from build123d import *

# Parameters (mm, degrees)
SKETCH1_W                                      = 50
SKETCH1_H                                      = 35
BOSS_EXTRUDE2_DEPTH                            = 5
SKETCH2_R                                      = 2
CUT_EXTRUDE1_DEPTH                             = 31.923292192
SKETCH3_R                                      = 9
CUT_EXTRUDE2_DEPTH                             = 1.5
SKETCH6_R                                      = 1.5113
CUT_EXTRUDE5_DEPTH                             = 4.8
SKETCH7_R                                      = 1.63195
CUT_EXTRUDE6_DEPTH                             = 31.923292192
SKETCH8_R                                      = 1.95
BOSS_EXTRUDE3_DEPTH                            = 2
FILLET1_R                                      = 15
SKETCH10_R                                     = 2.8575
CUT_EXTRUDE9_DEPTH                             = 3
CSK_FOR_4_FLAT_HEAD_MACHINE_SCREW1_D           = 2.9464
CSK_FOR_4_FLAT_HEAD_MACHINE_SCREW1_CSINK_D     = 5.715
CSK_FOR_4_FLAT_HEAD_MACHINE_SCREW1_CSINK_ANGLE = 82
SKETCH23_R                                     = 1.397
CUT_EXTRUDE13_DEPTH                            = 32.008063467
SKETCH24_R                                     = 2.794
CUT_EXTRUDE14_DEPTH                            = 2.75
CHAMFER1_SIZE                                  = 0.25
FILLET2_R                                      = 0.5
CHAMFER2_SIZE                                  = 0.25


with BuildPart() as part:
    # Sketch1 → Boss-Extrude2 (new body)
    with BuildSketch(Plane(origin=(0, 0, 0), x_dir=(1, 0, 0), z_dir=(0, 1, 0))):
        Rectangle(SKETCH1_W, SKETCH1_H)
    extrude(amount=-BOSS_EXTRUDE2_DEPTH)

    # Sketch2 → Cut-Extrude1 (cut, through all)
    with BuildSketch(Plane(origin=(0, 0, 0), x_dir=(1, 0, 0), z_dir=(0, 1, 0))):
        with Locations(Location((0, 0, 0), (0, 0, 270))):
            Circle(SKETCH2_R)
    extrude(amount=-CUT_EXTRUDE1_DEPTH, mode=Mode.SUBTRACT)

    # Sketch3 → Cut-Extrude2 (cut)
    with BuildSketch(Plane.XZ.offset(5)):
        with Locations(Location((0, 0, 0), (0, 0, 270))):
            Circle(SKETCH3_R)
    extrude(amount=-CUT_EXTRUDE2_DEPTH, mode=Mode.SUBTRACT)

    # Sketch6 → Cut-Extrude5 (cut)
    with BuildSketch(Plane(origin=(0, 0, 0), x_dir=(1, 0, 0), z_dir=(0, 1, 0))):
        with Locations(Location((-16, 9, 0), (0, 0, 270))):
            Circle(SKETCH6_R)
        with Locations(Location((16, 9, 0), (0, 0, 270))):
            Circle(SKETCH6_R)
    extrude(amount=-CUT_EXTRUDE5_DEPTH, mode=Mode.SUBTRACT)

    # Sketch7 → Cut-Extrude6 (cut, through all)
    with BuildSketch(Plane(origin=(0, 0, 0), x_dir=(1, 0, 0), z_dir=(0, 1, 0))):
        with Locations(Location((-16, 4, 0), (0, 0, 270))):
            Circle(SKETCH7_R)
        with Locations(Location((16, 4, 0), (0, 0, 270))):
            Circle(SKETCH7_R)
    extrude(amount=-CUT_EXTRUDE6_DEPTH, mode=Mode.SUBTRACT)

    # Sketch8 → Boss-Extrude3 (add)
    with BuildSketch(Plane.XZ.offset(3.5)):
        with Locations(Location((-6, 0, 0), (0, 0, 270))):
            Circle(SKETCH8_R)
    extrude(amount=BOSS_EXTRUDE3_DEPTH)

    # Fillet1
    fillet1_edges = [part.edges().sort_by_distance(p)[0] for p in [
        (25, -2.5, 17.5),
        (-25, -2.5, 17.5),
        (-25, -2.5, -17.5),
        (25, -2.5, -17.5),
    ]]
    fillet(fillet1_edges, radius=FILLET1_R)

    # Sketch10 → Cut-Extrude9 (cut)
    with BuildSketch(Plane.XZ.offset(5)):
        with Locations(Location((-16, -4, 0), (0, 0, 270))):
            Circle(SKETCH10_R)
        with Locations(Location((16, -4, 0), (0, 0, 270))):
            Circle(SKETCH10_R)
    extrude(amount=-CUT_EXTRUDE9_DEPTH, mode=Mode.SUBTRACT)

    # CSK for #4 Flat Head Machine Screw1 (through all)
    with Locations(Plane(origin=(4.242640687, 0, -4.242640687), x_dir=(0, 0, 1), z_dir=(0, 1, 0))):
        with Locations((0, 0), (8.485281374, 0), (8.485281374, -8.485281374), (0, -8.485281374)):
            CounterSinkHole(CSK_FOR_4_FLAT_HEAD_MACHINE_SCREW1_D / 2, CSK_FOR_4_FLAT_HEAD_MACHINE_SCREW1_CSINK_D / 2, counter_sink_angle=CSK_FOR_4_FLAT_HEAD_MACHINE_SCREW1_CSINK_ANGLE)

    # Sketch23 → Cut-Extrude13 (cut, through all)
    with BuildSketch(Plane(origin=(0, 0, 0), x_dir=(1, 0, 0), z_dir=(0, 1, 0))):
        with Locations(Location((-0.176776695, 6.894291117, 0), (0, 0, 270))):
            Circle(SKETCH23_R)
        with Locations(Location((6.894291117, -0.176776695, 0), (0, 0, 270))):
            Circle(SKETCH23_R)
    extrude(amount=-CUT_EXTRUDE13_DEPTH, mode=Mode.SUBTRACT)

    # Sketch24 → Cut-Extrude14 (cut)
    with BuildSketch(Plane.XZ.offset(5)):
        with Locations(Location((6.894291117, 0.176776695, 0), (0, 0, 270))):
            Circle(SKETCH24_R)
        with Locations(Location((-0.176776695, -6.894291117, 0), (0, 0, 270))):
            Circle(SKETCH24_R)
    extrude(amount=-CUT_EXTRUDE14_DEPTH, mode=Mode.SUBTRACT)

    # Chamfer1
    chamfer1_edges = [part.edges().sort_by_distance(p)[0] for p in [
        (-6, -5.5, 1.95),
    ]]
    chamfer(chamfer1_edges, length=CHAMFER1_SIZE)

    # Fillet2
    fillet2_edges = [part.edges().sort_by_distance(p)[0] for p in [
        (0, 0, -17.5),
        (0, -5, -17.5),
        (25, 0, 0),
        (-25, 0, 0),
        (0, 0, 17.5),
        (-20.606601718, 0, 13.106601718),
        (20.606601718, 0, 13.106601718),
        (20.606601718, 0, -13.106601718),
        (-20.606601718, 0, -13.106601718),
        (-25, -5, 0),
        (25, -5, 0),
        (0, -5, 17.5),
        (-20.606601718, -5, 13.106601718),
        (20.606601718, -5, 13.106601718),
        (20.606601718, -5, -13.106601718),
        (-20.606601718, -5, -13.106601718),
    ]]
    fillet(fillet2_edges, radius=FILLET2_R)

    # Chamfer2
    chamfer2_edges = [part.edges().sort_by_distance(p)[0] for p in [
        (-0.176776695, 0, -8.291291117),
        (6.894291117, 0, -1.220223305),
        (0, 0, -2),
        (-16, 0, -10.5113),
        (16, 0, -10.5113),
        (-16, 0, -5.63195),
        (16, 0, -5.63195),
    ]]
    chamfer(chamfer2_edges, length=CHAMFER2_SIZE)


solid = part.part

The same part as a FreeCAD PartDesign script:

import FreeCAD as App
import Part
import Sketcher
from FreeCAD import Vector
Q = App.Units.Quantity


def edges_at(feature, points):
    """Names of the edges that pass closest to the given points."""
    edges = feature.Shape.Edges
    near = lambda p: min(range(len(edges)), key=lambda i: edges[i].distToShape(Part.Vertex(*p))[0])
    return sorted({f"Edge{near(p) + 1}" for p in points})


def add_polygon(sketch, points):
    """Adds a closed chain of lines whose ends are joined by coincident constraints."""
    first, n = sketch.GeometryCount, len(points)
    for a, b in zip(points, points[1:] + points[:1]):
        sketch.addGeometry(Part.LineSegment(App.Vector(*a, 0), App.Vector(*b, 0)), False)
    for i in range(n):
        sketch.addConstraint(Sketcher.Constraint("Coincident", first + i, 2, first + (i + 1) % n, 1))

doc = App.newDocument("Part")
params = doc.addObject("Spreadsheet::Sheet", "Params")
for row, (alias, value) in enumerate([
    ("sketch1_width", "50 mm"),
    ("sketch1_height", "35 mm"),
    ("pad1_length", "5 mm"),
    ("sketch2_diameter", "4 mm"),
    ("sketch3_diameter", "18 mm"),
    ("pocket2_length", "1.5 mm"),
    ("pocket3_length", "4.8 mm"),
    ("sketch6_diameter", "3.9 mm"),
    ("pad2_length", "2 mm"),
    ("fillet_radius", "15 mm"),
    ("pocket5_length", "3 mm"),
    ("hole_diameter", "2.9464 mm"),
    ("hole_csink_diameter", "5.715 mm"),
    ("pocket7_length", "2.75 mm"),
    ("chamfer_size", "0.25 mm"),
    ("fillet2_radius", "0.5 mm"),
    ("chamfer2_size", "0.25 mm"),
], start=1):
    params.set(f"A{row}", alias)
    params.set(f"B{row}", "=" + value)
    params.setAlias(f"B{row}", alias)

body = doc.addObject("PartDesign::Body", "Body")

sketch1 = doc.addObject("Sketcher::SketchObject", "Sketch")
body.addObject(sketch1)
sketch1.AttachmentSupport = (doc.XZ_Plane, [""])
sketch1.MapMode = "FlatFace"
add_polygon(sketch1, [(-25, -18), (-25, 18), (25, 18), (25, -18)])
sketch1.addConstraint([
    Sketcher.Constraint("Vertical", 0),
    Sketcher.Constraint("Horizontal", 1),
    Sketcher.Constraint("Vertical", 2),
    Sketcher.Constraint("Horizontal", 3),
    Sketcher.Constraint("Symmetric", 0, 2, 2, 2, -1, 1),
    Sketcher.Constraint("DistanceX", 1, 1, 1, 2, Q("50 mm")),
    Sketcher.Constraint("DistanceY", 0, 1, 0, 2, Q("35 mm")),
])
sketch1.setExpression("Constraints[9]", "Params.sketch1_width")
sketch1.setExpression("Constraints[10]", "Params.sketch1_height")
pad1 = doc.addObject("PartDesign::Pad", "Pad")
body.addObject(pad1)
pad1.Profile = sketch1
pad1.setExpression("Length", "Params.pad1_length")

sketch2 = doc.addObject("Sketcher::SketchObject", "Sketch001")
body.addObject(sketch2)
sketch2.AttachmentSupport = (doc.XZ_Plane, [""])
sketch2.MapMode = "FlatFace"
sketch2.addGeometry(Part.Circle(Vector(0, 0, 0), Vector(0, 0, 1), 2), False)
sketch2.addConstraint([
    Sketcher.Constraint("Coincident", 0, 3, -1, 1),
    Sketcher.Constraint("Diameter", 0, Q("4 mm")),
])
sketch2.setExpression("Constraints[1]", "Params.sketch2_diameter")
pocket1 = doc.addObject("PartDesign::Pocket", "Pocket")
body.addObject(pocket1)
pocket1.Profile = sketch2
pocket1.Type = "ThroughAll"
pocket1.Reversed = True

sketch3 = doc.addObject("Sketcher::SketchObject", "Sketch002")
body.addObject(sketch3)
sketch3.AttachmentSupport = (doc.XZ_Plane, [""])
sketch3.MapMode = "FlatFace"
sketch3.AttachmentOffset = App.Placement(Vector(0, 0, 5), App.Rotation())
sketch3.addGeometry(Part.Circle(Vector(0, 0, 0), Vector(0, 0, 1), 9), False)
sketch3.addConstraint([
    Sketcher.Constraint("Coincident", 0, 3, -1, 1),
    Sketcher.Constraint("Diameter", 0, Q("18 mm")),
])
sketch3.setExpression("Constraints[1]", "Params.sketch3_diameter")
pocket2 = doc.addObject("PartDesign::Pocket", "Pocket001")
body.addObject(pocket2)
pocket2.Profile = sketch3
pocket2.setExpression("Length", "Params.pocket2_length")

sketch4 = doc.addObject("Sketcher::SketchObject", "Sketch003")
body.addObject(sketch4)
sketch4.AttachmentSupport = (doc.XZ_Plane, [""])
sketch4.MapMode = "FlatFace"
sketch4.addGeometry([
    Part.Circle(Vector(-16, -9, 0), Vector(0, 0, 1), 1.5),
    Part.Circle(Vector(16, -9, 0), Vector(0, 0, 1), 1.5),
], False)
sketch4.addConstraint([
    Sketcher.Constraint("Equal", 0, 1),
    Sketcher.Constraint("Symmetric", 0, 3, 1, 3, -2),
    Sketcher.Constraint("DistanceX", 0, 3, -1, 1, Q("16 mm")),
    Sketcher.Constraint("DistanceY", 0, 3, -1, 1, Q("9 mm")),
    Sketcher.Constraint("Diameter", 0, Q("3.0226 mm")),
])
pocket3 = doc.addObject("PartDesign::Pocket", "Pocket002")
body.addObject(pocket3)
pocket3.Profile = sketch4
pocket3.setExpression("Length", "Params.pocket3_length")
pocket3.Reversed = True

sketch5 = doc.addObject("Sketcher::SketchObject", "Sketch004")
body.addObject(sketch5)
sketch5.AttachmentSupport = (doc.XZ_Plane, [""])
sketch5.MapMode = "FlatFace"
sketch5.addGeometry([
    Part.Circle(Vector(-16, -4, 0), Vector(0, 0, 1), 1.6),
    Part.Circle(Vector(16, -4, 0), Vector(0, 0, 1), 1.6),
], False)
sketch5.addConstraint([
    Sketcher.Constraint("Equal", 0, 1),
    Sketcher.Constraint("Symmetric", 0, 3, 1, 3, -2),
    Sketcher.Constraint("DistanceX", 0, 3, -1, 1, Q("16 mm")),
    Sketcher.Constraint("DistanceY", 0, 3, -1, 1, Q("4 mm")),
    Sketcher.Constraint("Diameter", 0, Q("3.2639 mm")),
])
pocket4 = doc.addObject("PartDesign::Pocket", "Pocket003")
body.addObject(pocket4)
pocket4.Profile = sketch5
pocket4.Type = "ThroughAll"
pocket4.Reversed = True

sketch6 = doc.addObject("Sketcher::SketchObject", "Sketch005")
body.addObject(sketch6)
sketch6.AttachmentSupport = (doc.XZ_Plane, [""])
sketch6.MapMode = "FlatFace"
sketch6.AttachmentOffset = App.Placement(Vector(0, 0, 3.5), App.Rotation())
sketch6.addGeometry(Part.Circle(Vector(-6, 0, 0), Vector(0, 0, 1), 1.9), False)
sketch6.addConstraint([
    Sketcher.Constraint("PointOnObject", 0, 3, -1),
    Sketcher.Constraint("Diameter", 0, Q("3.9 mm")),
    Sketcher.Constraint("DistanceX", 0, 3, -1, 1, Q("6 mm")),
])
sketch6.setExpression("Constraints[1]", "Params.sketch6_diameter")
pad2 = doc.addObject("PartDesign::Pad", "Pad001")
body.addObject(pad2)
pad2.Profile = sketch6
pad2.setExpression("Length", "Params.pad2_length")
doc.recompute()

fillet = doc.addObject("PartDesign::Fillet", "Fillet")
body.addObject(fillet)
fillet.Base = (pad2, edges_at(pad2, [
    (25, -2.5, 17.5),
    (-25, -2.5, 17.5),
    (-25, -2.5, -17.5),
    (25, -2.5, -17.5),
]))
fillet.setExpression("Radius", "Params.fillet_radius")

sketch7 = doc.addObject("Sketcher::SketchObject", "Sketch006")
body.addObject(sketch7)
sketch7.AttachmentSupport = (doc.XZ_Plane, [""])
sketch7.MapMode = "FlatFace"
sketch7.AttachmentOffset = App.Placement(Vector(0, 0, 5), App.Rotation())
sketch7.addGeometry([
    Part.Circle(Vector(-16, -4, 0), Vector(0, 0, 1), 2.9),
    Part.Circle(Vector(16, -4, 0), Vector(0, 0, 1), 2.9),
], False)
sketch7.addConstraint([
    Sketcher.Constraint("Equal", 0, 1),
    Sketcher.Constraint("Symmetric", 0, 3, 1, 3, -2),
    Sketcher.Constraint("Diameter", 0, Q("5.715 mm")),
    Sketcher.Constraint("DistanceX", 0, 3, -1, 1, Q("16 mm")),
    Sketcher.Constraint("DistanceY", 0, 3, -1, 1, Q("4 mm")),
])
pocket5 = doc.addObject("PartDesign::Pocket", "Pocket004")
body.addObject(pocket5)
pocket5.Profile = sketch7
pocket5.setExpression("Length", "Params.pocket5_length")

sketch8 = doc.addObject("Sketcher::SketchObject", "Sketch007")
body.addObject(sketch8)
sketch8.AttachmentSupport = (doc.XZ_Plane, [""])
sketch8.MapMode = "FlatFace"
sketch8.addGeometry([
    Part.Circle(Vector(4.2, -4.2, 0), Vector(0, 0, 1), 1.5),
    Part.Circle(Vector(4.2, 4.2, 0), Vector(0, 0, 1), 1.5),
    Part.Circle(Vector(-4.2, 4.2, 0), Vector(0, 0, 1), 1.5),
    Part.Circle(Vector(-4.2, -4.2, 0), Vector(0, 0, 1), 1.5),
], False)
sketch8.addConstraint([
    Sketcher.Constraint("Equal", 0, 1),
    Sketcher.Constraint("Equal", 1, 2),
    Sketcher.Constraint("Equal", 2, 3),
    Sketcher.Constraint("Symmetric", 0, 3, 2, 3, -1, 1),
    Sketcher.Constraint("Symmetric", 1, 3, 3, 3, -1, 1),
    Sketcher.Constraint("Symmetric", 1, 3, 2, 3, -2),
    Sketcher.Constraint("Diameter", 0, Q("2.9464 mm")),
    Sketcher.Constraint("DistanceX", -1, 1, 0, 3, Q("4.242641 mm")),
    Sketcher.Constraint("DistanceY", 0, 3, -1, 1, Q("4.242641 mm")),
])
doc.recompute()
hole = doc.addObject("PartDesign::Hole", "Hole")
body.addObject(hole)
hole.Profile = sketch8
hole.ThreadType = "None"
hole.setExpression("Diameter", "Params.hole_diameter")
hole.DepthType = "ThroughAll"
hole.HoleCutType = "Countersink"
hole.setExpression("HoleCutDiameter", "Params.hole_csink_diameter")
hole.HoleCutCountersinkAngle = 82
hole.Reversed = True

sketch9 = doc.addObject("Sketcher::SketchObject", "Sketch008")
body.addObject(sketch9)
sketch9.AttachmentSupport = (doc.XZ_Plane, [""])
sketch9.MapMode = "FlatFace"
sketch9.addGeometry([
    Part.Circle(Vector(-0.2, -6.9, 0), Vector(0, 0, 1), 1.4),
    Part.Circle(Vector(6.9, 0.2, 0), Vector(0, 0, 1), 1.4),
], False)
sketch9.addConstraint([
    Sketcher.Constraint("Equal", 0, 1),
    Sketcher.Constraint("Diameter", 0, Q("2.794 mm")),
    Sketcher.Constraint("DistanceY", 0, 3, -1, 1, Q("6.894291 mm")),
    Sketcher.Constraint("DistanceX", -1, 1, 1, 3, Q("6.894291 mm")),
    Sketcher.Constraint("DistanceX", 0, 3, -1, 1, Q("0.176777 mm")),
    Sketcher.Constraint("DistanceY", -1, 1, 1, 3, Q("0.176777 mm")),
])
pocket6 = doc.addObject("PartDesign::Pocket", "Pocket005")
body.addObject(pocket6)
pocket6.Profile = sketch9
pocket6.Type = "ThroughAll"
pocket6.Reversed = True

sketch10 = doc.addObject("Sketcher::SketchObject", "Sketch009")
body.addObject(sketch10)
sketch10.AttachmentSupport = (doc.XZ_Plane, [""])
sketch10.MapMode = "FlatFace"
sketch10.AttachmentOffset = App.Placement(Vector(0, 0, 5), App.Rotation())
sketch10.addGeometry([
    Part.Circle(Vector(6.9, 0.2, 0), Vector(0, 0, 1), 2.8),
    Part.Circle(Vector(-0.2, -6.9, 0), Vector(0, 0, 1), 2.8),
], False)
sketch10.addConstraint([
    Sketcher.Constraint("Equal", 0, 1),
    Sketcher.Constraint("Diameter", 0, Q("5.588 mm")),
    Sketcher.Constraint("DistanceX", -1, 1, 0, 3, Q("6.894291 mm")),
    Sketcher.Constraint("DistanceY", 1, 3, -1, 1, Q("6.894291 mm")),
    Sketcher.Constraint("DistanceY", -1, 1, 0, 3, Q("0.176777 mm")),
    Sketcher.Constraint("DistanceX", 1, 3, -1, 1, Q("0.176777 mm")),
])
pocket7 = doc.addObject("PartDesign::Pocket", "Pocket006")
body.addObject(pocket7)
pocket7.Profile = sketch10
pocket7.setExpression("Length", "Params.pocket7_length")
doc.recompute()

chamfer = doc.addObject("PartDesign::Chamfer", "Chamfer")
body.addObject(chamfer)
chamfer.Base = (pocket7, edges_at(pocket7, [(-6, -5.5, 1.95)]))
chamfer.setExpression("Size", "Params.chamfer_size")
doc.recompute()

fillet2 = doc.addObject("PartDesign::Fillet", "Fillet001")
body.addObject(fillet2)
fillet2.Base = (chamfer, edges_at(chamfer, [
    (0, 0, -17.5),
    (0, -5, -17.5),
    (25, 0, 0),
    (-25, 0, 0),
    (0, 0, 17.5),
    (-20.607, 0, 13.107),
    (20.607, 0, 13.107),
    (20.607, 0, -13.107),
    (-20.607, 0, -13.107),
    (-25, -5, 0),
    (25, -5, 0),
    (0, -5, 17.5),
    (-20.607, -5, 13.107),
    (20.607, -5, 13.107),
    (20.607, -5, -13.107),
    (-20.607, -5, -13.107),
]))
fillet2.setExpression("Radius", "Params.fillet2_radius")
doc.recompute()

chamfer2 = doc.addObject("PartDesign::Chamfer", "Chamfer001")
body.addObject(chamfer2)
chamfer2.Base = (fillet2, edges_at(fillet2, [
    (-0.177, 0, -8.291),
    (6.894, 0, -1.22),
    (0, 0, -2),
    (-16, 0, -10.511),
    (16, 0, -10.511),
    (-16, 0, -5.632),
    (16, 0, -5.632),
]))
chamfer2.setExpression("Size", "Params.chamfer2_size")

doc.recompute()
